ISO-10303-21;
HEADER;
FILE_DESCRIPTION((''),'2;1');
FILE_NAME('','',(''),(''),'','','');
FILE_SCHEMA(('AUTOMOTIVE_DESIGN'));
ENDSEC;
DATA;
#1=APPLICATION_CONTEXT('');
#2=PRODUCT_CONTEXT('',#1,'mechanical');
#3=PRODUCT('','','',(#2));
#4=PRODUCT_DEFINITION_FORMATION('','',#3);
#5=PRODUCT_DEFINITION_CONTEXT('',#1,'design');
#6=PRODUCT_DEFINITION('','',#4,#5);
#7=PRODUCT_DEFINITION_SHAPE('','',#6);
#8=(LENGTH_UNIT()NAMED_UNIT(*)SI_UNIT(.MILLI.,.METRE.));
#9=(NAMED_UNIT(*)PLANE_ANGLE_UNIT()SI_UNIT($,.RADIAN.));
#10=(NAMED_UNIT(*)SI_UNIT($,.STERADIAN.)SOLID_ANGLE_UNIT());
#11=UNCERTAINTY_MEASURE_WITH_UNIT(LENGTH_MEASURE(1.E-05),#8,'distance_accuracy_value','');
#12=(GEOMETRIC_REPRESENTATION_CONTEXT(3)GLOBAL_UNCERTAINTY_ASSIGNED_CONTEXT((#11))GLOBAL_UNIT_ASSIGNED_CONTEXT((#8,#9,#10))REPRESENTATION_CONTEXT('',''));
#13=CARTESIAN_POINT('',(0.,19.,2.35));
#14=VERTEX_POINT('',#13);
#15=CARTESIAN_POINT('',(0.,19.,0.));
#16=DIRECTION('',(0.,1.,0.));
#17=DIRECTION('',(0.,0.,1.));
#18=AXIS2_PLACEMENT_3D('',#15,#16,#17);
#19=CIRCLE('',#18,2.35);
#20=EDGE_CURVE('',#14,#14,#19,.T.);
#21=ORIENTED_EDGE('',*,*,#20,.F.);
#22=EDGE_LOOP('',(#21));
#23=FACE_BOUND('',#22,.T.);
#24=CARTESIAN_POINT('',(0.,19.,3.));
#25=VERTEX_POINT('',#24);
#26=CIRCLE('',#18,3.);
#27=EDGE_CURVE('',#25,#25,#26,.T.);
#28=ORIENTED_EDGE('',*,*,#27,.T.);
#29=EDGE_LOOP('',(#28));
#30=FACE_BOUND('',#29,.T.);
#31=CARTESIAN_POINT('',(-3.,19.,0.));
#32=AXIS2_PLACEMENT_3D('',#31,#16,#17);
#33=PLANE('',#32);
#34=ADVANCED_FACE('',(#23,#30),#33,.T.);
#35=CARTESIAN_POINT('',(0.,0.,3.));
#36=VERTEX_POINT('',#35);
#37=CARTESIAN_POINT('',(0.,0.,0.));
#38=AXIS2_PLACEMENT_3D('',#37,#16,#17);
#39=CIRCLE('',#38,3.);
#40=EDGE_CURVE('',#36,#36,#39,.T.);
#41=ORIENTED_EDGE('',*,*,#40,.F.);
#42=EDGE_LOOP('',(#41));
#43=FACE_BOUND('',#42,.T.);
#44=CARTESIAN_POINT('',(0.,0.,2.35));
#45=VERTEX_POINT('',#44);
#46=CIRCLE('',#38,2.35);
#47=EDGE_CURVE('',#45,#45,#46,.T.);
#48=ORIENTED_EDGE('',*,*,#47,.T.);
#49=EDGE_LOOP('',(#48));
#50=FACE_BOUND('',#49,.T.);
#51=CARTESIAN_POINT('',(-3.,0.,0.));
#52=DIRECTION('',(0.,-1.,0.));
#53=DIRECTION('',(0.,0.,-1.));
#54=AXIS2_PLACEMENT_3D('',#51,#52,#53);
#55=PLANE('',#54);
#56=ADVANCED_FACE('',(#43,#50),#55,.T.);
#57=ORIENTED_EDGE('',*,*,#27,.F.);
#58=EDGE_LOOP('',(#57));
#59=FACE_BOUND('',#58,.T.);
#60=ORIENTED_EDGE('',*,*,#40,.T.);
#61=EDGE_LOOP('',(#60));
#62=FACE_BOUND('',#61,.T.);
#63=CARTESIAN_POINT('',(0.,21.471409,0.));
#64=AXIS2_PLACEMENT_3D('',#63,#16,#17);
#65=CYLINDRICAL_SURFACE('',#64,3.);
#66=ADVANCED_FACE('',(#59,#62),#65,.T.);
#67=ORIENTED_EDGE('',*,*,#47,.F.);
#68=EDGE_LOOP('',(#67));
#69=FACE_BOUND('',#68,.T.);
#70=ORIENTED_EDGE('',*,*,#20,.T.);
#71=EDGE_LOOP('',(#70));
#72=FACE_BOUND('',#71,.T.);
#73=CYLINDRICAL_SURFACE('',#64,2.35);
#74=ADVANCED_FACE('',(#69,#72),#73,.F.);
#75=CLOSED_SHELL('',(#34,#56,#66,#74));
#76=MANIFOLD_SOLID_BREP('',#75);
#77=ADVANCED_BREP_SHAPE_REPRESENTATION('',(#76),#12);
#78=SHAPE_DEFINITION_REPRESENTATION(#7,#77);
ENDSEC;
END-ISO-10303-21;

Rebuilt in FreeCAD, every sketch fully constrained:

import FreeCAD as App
import Part
import Sketcher

doc = App.newDocument("Part")
body = doc.addObject("PartDesign::Body", "Body")

sketch1 = body.newObject("Sketcher::SketchObject", "Sketch")
sketch1.AttachmentSupport = (doc.getObject("XY_Plane"), [""])
sketch1.MapMode = "FlatFace"
sketch1.addGeometry([
    Part.LineSegment(App.Vector(-3, 19, 0), App.Vector(-3, 0, 0)),
    Part.LineSegment(App.Vector(-3, 0, 0), App.Vector(-2.35, 0, 0)),
    Part.LineSegment(App.Vector(-2.35, 0, 0), App.Vector(-2.35, 19, 0)),
    Part.LineSegment(App.Vector(-2.35, 19, 0), App.Vector(-3, 19, 0)),
], False)
sketch1.addConstraint([
    Sketcher.Constraint("Coincident", 0, 2, 1, 1),
    Sketcher.Constraint("Coincident", 1, 2, 2, 1),
    Sketcher.Constraint("Coincident", 2, 2, 3, 1),
    Sketcher.Constraint("Coincident", 3, 2, 0, 1),
    Sketcher.Constraint("Vertical", 0),
    Sketcher.Constraint("Horizontal", 1),
    Sketcher.Constraint("Vertical", 2),
    Sketcher.Constraint("Horizontal", 3),
    Sketcher.Constraint("PointOnObject", 0, 2, -1),
    Sketcher.Constraint("DistanceY", 0, 2, 0, 1, 19.0),
    Sketcher.Constraint("DistanceX", 0, 2, -1, 1, 3.0),
    Sketcher.Constraint("DistanceX", 1, 1, 1, 2, 0.65),
])
revolution = body.newObject("PartDesign::Revolution", "Revolution")
revolution.Profile = sketch1
revolution.ReferenceAxis = (sketch1, ["V_Axis"])
revolution.Angle = 360

doc.recompute()
